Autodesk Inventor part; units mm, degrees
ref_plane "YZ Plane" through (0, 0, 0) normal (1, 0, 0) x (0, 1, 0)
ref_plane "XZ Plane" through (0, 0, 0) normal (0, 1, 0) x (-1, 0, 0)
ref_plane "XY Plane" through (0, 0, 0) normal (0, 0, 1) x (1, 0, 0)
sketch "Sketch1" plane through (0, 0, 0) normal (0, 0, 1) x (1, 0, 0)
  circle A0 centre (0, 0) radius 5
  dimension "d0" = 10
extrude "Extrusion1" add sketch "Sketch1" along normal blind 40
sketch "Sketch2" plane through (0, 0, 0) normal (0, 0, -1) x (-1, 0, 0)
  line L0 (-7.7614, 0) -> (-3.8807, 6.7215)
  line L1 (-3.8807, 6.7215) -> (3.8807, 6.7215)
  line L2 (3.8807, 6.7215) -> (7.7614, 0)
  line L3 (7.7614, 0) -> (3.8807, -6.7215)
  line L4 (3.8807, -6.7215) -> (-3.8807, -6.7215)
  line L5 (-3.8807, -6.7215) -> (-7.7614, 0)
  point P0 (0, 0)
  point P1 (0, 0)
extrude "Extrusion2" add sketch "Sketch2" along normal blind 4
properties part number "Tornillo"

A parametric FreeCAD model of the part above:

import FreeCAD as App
import Part
import Sketcher
from FreeCAD import Vector
Q = App.Units.Quantity

doc = App.newDocument("Part")
body = doc.addObject("PartDesign::Body", "Body")

sketch1 = doc.addObject("Sketcher::SketchObject", "Sketch")
body.addObject(sketch1)
sketch1.AttachmentSupport = (doc.XY_Plane, [""])
sketch1.MapMode = "FlatFace"
sketch1.addGeometry(Part.Circle(Vector(0, 0, 0), Vector(0, 0, 1), 5), False)
sketch1.addConstraint([
    Sketcher.Constraint("Coincident", 0, 3, -1, 1),
    Sketcher.Constraint("Diameter", 0, 10.0),
])
pad1 = doc.addObject("PartDesign::Pad", "Pad")
body.addObject(pad1)
pad1.Profile = sketch1
pad1.Length = 40

sketch2 = doc.addObject("Sketcher::SketchObject", "Sketch001")
body.addObject(sketch2)
sketch2.AttachmentSupport = (doc.XY_Plane, [""])
sketch2.MapMode = "FlatFace"
sketch2.addGeometry([
    Part.LineSegment(Vector(4, 7, 0), Vector(8, 0, 0)),
    Part.LineSegment(Vector(8, 0, 0), Vector(4, -7, 0)),
    Part.LineSegment(Vector(4, -7, 0), Vector(-4, -7, 0)),
    Part.LineSegment(Vector(-4, -7, 0), Vector(-8, 0, 0)),
    Part.LineSegment(Vector(-8, 0, 0), Vector(-4, 7, 0)),
    Part.LineSegment(Vector(-4, 7, 0), Vector(4, 7, 0)),
], False)
sketch2.addConstraint([
    Sketcher.Constraint("Coincident", 0, 2, 1, 1),
    Sketcher.Constraint("Coincident", 1, 2, 2, 1),
    Sketcher.Constraint("Coincident", 2, 2, 3, 1),
    Sketcher.Constraint("Coincident", 3, 2, 4, 1),
    Sketcher.Constraint("Coincident", 4, 2, 5, 1),
    Sketcher.Constraint("Coincident", 5, 2, 0, 1),
    Sketcher.Constraint("Horizontal", 2),
    Sketcher.Constraint("Horizontal", 5),
    Sketcher.Constraint("Symmetric", 0, 2, 3, 2, -1, 1),
    Sketcher.Constraint("Symmetric", 1, 2, 4, 2, -1, 1),
    Sketcher.Constraint("PointOnObject", 0, 2, -1),
    Sketcher.Constraint("Parallel", 0, 3),
    Sketcher.Constraint("Vertical", 2, 2, 4, 2),
    Sketcher.Constraint("Angle", 0, Q("-59.9997 deg")),
    Sketcher.Constraint("DistanceX", 2, 2, 2, 1, 7.7614),
    Sketcher.Constraint("DistanceX", 2, 2, 0, 2, 11.642),
])
pad2 = doc.addObject("PartDesign::Pad", "Pad001")
body.addObject(pad2)
pad2.Profile = sketch2
pad2.Length = 4
pad2.Reversed = True

doc.recompute()
